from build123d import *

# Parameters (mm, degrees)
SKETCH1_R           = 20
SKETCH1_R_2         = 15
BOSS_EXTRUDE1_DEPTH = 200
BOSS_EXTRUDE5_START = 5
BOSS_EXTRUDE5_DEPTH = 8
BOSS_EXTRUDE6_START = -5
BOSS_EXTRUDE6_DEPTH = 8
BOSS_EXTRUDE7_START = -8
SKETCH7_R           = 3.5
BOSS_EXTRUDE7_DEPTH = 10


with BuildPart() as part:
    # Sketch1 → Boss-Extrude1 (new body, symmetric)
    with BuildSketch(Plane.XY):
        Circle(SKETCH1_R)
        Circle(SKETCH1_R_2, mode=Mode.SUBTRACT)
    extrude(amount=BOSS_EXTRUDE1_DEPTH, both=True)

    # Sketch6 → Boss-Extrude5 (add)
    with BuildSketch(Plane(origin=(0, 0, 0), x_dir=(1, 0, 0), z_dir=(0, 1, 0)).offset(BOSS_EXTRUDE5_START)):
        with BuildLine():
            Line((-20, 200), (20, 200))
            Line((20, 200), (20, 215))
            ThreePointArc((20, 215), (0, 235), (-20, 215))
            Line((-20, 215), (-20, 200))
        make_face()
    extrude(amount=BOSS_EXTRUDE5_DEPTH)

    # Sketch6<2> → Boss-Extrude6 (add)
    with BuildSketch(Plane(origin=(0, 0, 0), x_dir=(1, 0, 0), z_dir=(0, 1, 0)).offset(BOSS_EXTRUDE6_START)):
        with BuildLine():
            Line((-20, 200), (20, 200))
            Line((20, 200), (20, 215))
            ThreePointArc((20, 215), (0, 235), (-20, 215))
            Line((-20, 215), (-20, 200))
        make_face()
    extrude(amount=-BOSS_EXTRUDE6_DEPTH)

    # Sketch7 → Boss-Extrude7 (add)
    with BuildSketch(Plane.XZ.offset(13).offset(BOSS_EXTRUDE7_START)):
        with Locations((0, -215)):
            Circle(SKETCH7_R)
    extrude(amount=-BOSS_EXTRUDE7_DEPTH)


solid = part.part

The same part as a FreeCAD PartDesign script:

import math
import FreeCAD as App
import Part
import Sketcher

doc = App.newDocument("Part")
body = doc.addObject("PartDesign::Body", "Body")

# Sketch on XY plane
sketch1 = body.newObject("Sketcher::SketchObject", "Sketch")
sketch1.AttachmentSupport = (doc.getObject("XY_Plane"), [""])
sketch1.MapMode = "FlatFace"
sketch1.addGeometry([
    Part.Circle(App.Vector(0, 0, 0), App.Vector(0, 0, 1), 20),
    Part.Circle(App.Vector(0, 0, 0), App.Vector(0, 0, 1), 15),
], False)
sketch1.addConstraint([
    Sketcher.Constraint("Coincident", 0, 3, -1, 1),
    Sketcher.Constraint("Coincident", 1, 3, -1, 1),
    Sketcher.Constraint("Diameter", 0, 40.0),
    Sketcher.Constraint("Diameter", 1, 30.0),
])
pad1 = body.newObject("PartDesign::Pad", "Pad")
pad1.Profile = sketch1
pad1.Length = 400
pad1.Midplane = True

# Sketch on XZ plane
sketch2 = body.newObject("Sketcher::SketchObject", "Sketch001")
sketch2.AttachmentSupport = (doc.getObject("XZ_Plane"), [""])
sketch2.MapMode = "FlatFace"
sketch2.AttachmentOffset = App.Placement(App.Vector(0, 0, -5), App.Rotation())
sketch2.addGeometry([
    Part.LineSegment(App.Vector(-20, -200, 0), App.Vector(20, -200, 0)),
    Part.LineSegment(App.Vector(20, -200, 0), App.Vector(20, -215, 0)),
    Part.ArcOfCircle(Part.Circle(App.Vector(0, -215, 0), App.Vector(0, 0, 1), 20), math.radians(180), math.radians(360)),
    Part.LineSegment(App.Vector(-20, -215, 0), App.Vector(-20, -200, 0)),
], False)
sketch2.addConstraint([
    Sketcher.Constraint("Coincident", 0, 2, 1, 1),
    Sketcher.Constraint("Tangent", 1, 2, 2, 2),
    Sketcher.Constraint("Tangent", 2, 1, 3, 1),
    Sketcher.Constraint("Coincident", 3, 2, 0, 1),
    Sketcher.Constraint("Horizontal", 0),
    Sketcher.Constraint("Vertical", 1),
    Sketcher.Constraint("Vertical", 3),
    Sketcher.Constraint("PointOnObject", 2, 3, -2),
    Sketcher.Constraint("Radius", 2, 20.0),
    Sketcher.Constraint("DistanceY", 1, 2, 1, 1, 15.0),
    Sketcher.Constraint("DistanceY", 2, 3, -1, 1, 215.0),
])
pad2 = body.newObject("PartDesign::Pad", "Pad001")
pad2.Profile = sketch2
pad2.Length = 8
pad2.Reversed = True

# Sketch on XZ plane
sketch3 = body.newObject("Sketcher::SketchObject", "Sketch002")
sketch3.AttachmentSupport = (doc.getObject("XZ_Plane"), [""])
sketch3.MapMode = "FlatFace"
sketch3.AttachmentOffset = App.Placement(App.Vector(0, 0, 5), App.Rotation())
sketch3.addGeometry([
    Part.LineSegment(App.Vector(-20, -200, 0), App.Vector(20, -200, 0)),
    Part.LineSegment(App.Vector(20, -200, 0), App.Vector(20, -215, 0)),
    Part.ArcOfCircle(Part.Circle(App.Vector(0, -215, 0), App.Vector(0, 0, 1), 20), math.radians(180), math.radians(360)),
    Part.LineSegment(App.Vector(-20, -215, 0), App.Vector(-20, -200, 0)),
], False)
sketch3.addConstraint([
    Sketcher.Constraint("Coincident", 0, 2, 1, 1),
    Sketcher.Constraint("Tangent", 1, 2, 2, 2),
    Sketcher.Constraint("Tangent", 2, 1, 3, 1),
    Sketcher.Constraint("Coincident", 3, 2, 0, 1),
    Sketcher.Constraint("Horizontal", 0),
    Sketcher.Constraint("Vertical", 1),
    Sketcher.Constraint("Vertical", 3),
    Sketcher.Constraint("PointOnObject", 2, 3, -2),
    Sketcher.Constraint("Radius", 2, 20.0),
    Sketcher.Constraint("DistanceY", 1, 2, 1, 1, 15.0),
    Sketcher.Constraint("DistanceY", 2, 3, -1, 1, 215.0),
])
pad3 = body.newObject("PartDesign::Pad", "Pad002")
pad3.Profile = sketch3
pad3.Length = 8

# Sketch on XZ plane
sketch4 = body.newObject("Sketcher::SketchObject", "Sketch003")
sketch4.AttachmentSupport = (doc.getObject("XZ_Plane"), [""])
sketch4.MapMode = "FlatFace"
sketch4.AttachmentOffset = App.Placement(App.Vector(0, 0, 5), App.Rotation())
sketch4.addGeometry(Part.Circle(App.Vector(0, -215, 0), App.Vector(0, 0, 1), 3.5), False)
sketch4.addConstraint([
    Sketcher.Constraint("PointOnObject", 0, 3, -2),
    Sketcher.Constraint("Diameter", 0, 7.0),
    Sketcher.Constraint("DistanceY", 0, 3, -1, 1, 215.0),
])
pad4 = body.newObject("PartDesign::Pad", "Pad003")
pad4.Profile = sketch4
pad4.Length = 10
pad4.Reversed = True

doc.recompute()
